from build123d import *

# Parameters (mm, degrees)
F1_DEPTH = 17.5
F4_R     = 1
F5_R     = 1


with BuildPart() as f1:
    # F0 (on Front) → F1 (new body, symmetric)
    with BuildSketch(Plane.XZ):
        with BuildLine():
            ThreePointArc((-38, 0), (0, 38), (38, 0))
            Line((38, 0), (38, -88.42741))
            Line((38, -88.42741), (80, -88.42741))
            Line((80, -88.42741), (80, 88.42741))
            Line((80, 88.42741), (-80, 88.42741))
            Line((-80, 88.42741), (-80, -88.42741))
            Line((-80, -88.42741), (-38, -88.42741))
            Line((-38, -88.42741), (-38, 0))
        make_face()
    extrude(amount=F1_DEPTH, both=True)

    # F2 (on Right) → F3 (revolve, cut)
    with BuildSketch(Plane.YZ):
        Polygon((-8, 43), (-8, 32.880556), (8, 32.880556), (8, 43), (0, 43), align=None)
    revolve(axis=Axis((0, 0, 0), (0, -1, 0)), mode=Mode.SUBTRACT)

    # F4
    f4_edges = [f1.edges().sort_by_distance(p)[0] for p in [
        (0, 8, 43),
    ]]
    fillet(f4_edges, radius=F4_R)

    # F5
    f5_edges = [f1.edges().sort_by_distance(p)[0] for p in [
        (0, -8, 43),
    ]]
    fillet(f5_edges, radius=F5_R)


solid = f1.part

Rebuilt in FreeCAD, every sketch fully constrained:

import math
import FreeCAD as App
import Part
import Sketcher
from FreeCAD import Vector


def edges_at(feature, points):
    """Names of the edges that pass closest to the given points."""
    edges = feature.Shape.Edges
    near = lambda p: min(range(len(edges)), key=lambda i: edges[i].distToShape(Part.Vertex(*p))[0])
    return sorted({f"Edge{near(p) + 1}" for p in points})


def add_polygon(sketch, points):
    """Adds a closed chain of lines whose ends are joined by coincident constraints."""
    first, n = sketch.GeometryCount, len(points)
    for a, b in zip(points, points[1:] + points[:1]):
        sketch.addGeometry(Part.LineSegment(App.Vector(*a, 0), App.Vector(*b, 0)), False)
    for i in range(n):
        sketch.addConstraint(Sketcher.Constraint("Coincident", first + i, 2, first + (i + 1) % n, 1))

doc = App.newDocument("Part")
body = doc.addObject("PartDesign::Body", "Body")

sketch1 = doc.addObject("Sketcher::SketchObject", "Sketch")
body.addObject(sketch1)
sketch1.AttachmentSupport = (doc.XZ_Plane, [""])
sketch1.MapMode = "FlatFace"
sketch1.addGeometry([
    Part.ArcOfCircle(Part.Circle(Vector(0, 0, 0), Vector(0, 0, 1), 38), math.radians(0), math.radians(180)),
    Part.LineSegment(Vector(38, 0, 0), Vector(38, -88, 0)),
    Part.LineSegment(Vector(38, -88, 0), Vector(80, -88, 0)),
    Part.LineSegment(Vector(80, -88, 0), Vector(80, 88, 0)),
    Part.LineSegment(Vector(80, 88, 0), Vector(-80, 88, 0)),
    Part.LineSegment(Vector(-80, 88, 0), Vector(-80, -88, 0)),
    Part.LineSegment(Vector(-80, -88, 0), Vector(-38, -88, 0)),
    Part.LineSegment(Vector(-38, -88, 0), Vector(-38, 0, 0)),
], False)
sketch1.addConstraint([
    Sketcher.Constraint("Tangent", 0, 1, 1, 1),
    Sketcher.Constraint("Coincident", 1, 2, 2, 1),
    Sketcher.Constraint("Coincident", 2, 2, 3, 1),
    Sketcher.Constraint("Coincident", 3, 2, 4, 1),
    Sketcher.Constraint("Coincident", 4, 2, 5, 1),
    Sketcher.Constraint("Coincident", 5, 2, 6, 1),
    Sketcher.Constraint("Coincident", 6, 2, 7, 1),
    Sketcher.Constraint("Tangent", 7, 2, 0, 2),
    Sketcher.Constraint("Vertical", 1),
    Sketcher.Constraint("Horizontal", 2),
    Sketcher.Constraint("Vertical", 3),
    Sketcher.Constraint("Horizontal", 4),
    Sketcher.Constraint("Vertical", 5),
    Sketcher.Constraint("Horizontal", 6),
    Sketcher.Constraint("Vertical", 7),
    Sketcher.Constraint("Coincident", 0, 3, -1, 1),
    Sketcher.Constraint("Symmetric", 2, 2, 4, 2, -1, 1),
    Sketcher.Constraint("Horizontal", 2, 2, 5, 2),
    Sketcher.Constraint("Radius", 0, 38.0),
    Sketcher.Constraint("DistanceX", 2, 1, 2, 2, 42.0),
    Sketcher.Constraint("DistanceY", 1, 2, 1, 1, 88.42741),
])
pad1 = doc.addObject("PartDesign::Pad", "Pad")
body.addObject(pad1)
pad1.Profile = sketch1
pad1.Length = 35
pad1.Midplane = True

sketch2 = doc.addObject("Sketcher::SketchObject", "Sketch001")
body.addObject(sketch2)
sketch2.AttachmentSupport = (doc.YZ_Plane, [""])
sketch2.MapMode = "FlatFace"
add_polygon(sketch2, [(-8, 43), (-8, 33), (8, 33), (8, 43)])
sketch2.addConstraint([
    Sketcher.Constraint("Vertical", 0),
    Sketcher.Constraint("Horizontal", 1),
    Sketcher.Constraint("Vertical", 2),
    Sketcher.Constraint("Horizontal", 3),
    Sketcher.Constraint("DistanceX", 1, 1, 1, 2, 16.0),
    Sketcher.Constraint("DistanceX", 0, 2, -1, 1, 8.0),
    Sketcher.Constraint("DistanceY", -1, 1, 2, 2, 43.0),
    Sketcher.Constraint("DistanceY", 0, 2, 0, 1, 10.119444),
])
groove = doc.addObject("PartDesign::Groove", "Groove")
body.addObject(groove)
groove.Profile = sketch2
groove.ReferenceAxis = (sketch2, ["H_Axis"])
groove.Angle = 360
doc.recompute()

fillet = doc.addObject("PartDesign::Fillet", "Fillet")
body.addObject(fillet)
fillet.Base = (groove, edges_at(groove, [(0, 8, 43)]))
fillet.Radius = 1
doc.recompute()

fillet2 = doc.addObject("PartDesign::Fillet", "Fillet001")
body.addObject(fillet2)
fillet2.Base = (fillet, edges_at(fillet, [(0, -8, 43)]))
fillet2.Radius = 1

doc.recompute()
